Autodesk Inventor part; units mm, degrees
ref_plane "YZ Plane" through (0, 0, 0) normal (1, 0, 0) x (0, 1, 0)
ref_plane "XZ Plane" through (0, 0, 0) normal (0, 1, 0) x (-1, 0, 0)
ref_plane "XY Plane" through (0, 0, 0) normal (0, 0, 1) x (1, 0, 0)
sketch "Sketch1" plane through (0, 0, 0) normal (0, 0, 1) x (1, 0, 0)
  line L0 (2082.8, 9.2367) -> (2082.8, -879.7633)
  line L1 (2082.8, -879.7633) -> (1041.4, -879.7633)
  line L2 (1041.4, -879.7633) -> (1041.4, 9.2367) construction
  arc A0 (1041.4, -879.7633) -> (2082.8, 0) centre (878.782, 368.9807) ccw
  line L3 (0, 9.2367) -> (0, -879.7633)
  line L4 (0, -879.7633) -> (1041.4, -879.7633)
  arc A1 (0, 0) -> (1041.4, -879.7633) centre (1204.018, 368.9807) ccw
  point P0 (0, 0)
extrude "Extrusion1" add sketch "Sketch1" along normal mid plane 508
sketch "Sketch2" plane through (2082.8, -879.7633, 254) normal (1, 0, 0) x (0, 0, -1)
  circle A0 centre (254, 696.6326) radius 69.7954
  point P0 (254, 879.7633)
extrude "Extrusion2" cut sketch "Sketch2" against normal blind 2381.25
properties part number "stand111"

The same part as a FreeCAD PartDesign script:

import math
import FreeCAD as App
import Part
import Sketcher

V = App.Vector
Q = App.Units.Quantity

doc = App.newDocument("Part")
body = doc.addObject("PartDesign::Body", "Body")
body.AllowCompound = True

sketch1 = doc.addObject("Sketcher::SketchObject", "Sketch")
body.addObject(sketch1)
sketch1.AttachmentSupport = (doc.XY_Plane, [""])
sketch1.MapMode = "FlatFace"
sketch1.addGeometry([
    Part.LineSegment(V(0, -880, 0), V(1041, -880, 0)),
    Part.ArcOfCircle(Part.Circle(V(1204, 369, 0), V(0, 0, 1), 1259), math.radians(-163), math.radians(-97)),
    Part.LineSegment(V(0, 0, 0), V(0, -880, 0)),
    Part.LineSegment(V(2083, -880, 0), V(2083, 0, 0)),
    Part.ArcOfCircle(Part.Circle(V(879, 369, 0), V(0, 0, 1), 1259), math.radians(-83), math.radians(-17)),
    Part.LineSegment(V(1041, -880, 0), V(2083, -880, 0)),
], False)
sketch1.addConstraint([
    Sketcher.Constraint("Coincident", 0, 2, 1, 2),
    Sketcher.Constraint("Coincident", 1, 1, 2, 1),
    Sketcher.Constraint("Coincident", 2, 2, 0, 1),
    Sketcher.Constraint("Coincident", 3, 2, 4, 2),
    Sketcher.Constraint("Coincident", 4, 1, 5, 1),
    Sketcher.Constraint("Coincident", 5, 2, 3, 1),
    Sketcher.Constraint("Horizontal", 0),
    Sketcher.Constraint("Vertical", 2),
    Sketcher.Constraint("Vertical", 3),
    Sketcher.Constraint("Horizontal", 5),
    Sketcher.Constraint("Equal", 1, 4),
    Sketcher.Constraint("PointOnObject", 2, 2, -2),
    Sketcher.Constraint("PointOnObject", 3, 2, -1),
    Sketcher.Constraint("Horizontal", 1, 3, 4, 3),
    Sketcher.Constraint("Equal", 0, 5),
    Sketcher.Constraint("Equal", 2, 3),
    Sketcher.Constraint("DistanceX", 0, 1, 0, 2, Q("41 in")),
    Sketcher.Constraint("DistanceX", -1, 1, 3, 2, Q("82 in")),
    Sketcher.Constraint("Radius", 1, Q("1259.288 mm")),
    Sketcher.Constraint("DistanceY", 2, 2, 2, 1, Q("879.7633 mm")),
])
pad1 = doc.addObject("PartDesign::Pad", "Pad")
body.addObject(pad1)
pad1.Profile = sketch1
pad1.Length = Q("20 in")
pad1.Midplane = True

sketch2 = doc.addObject("Sketcher::SketchObject", "Sketch001")
body.addObject(sketch2)
sketch2.AttachmentSupport = (doc.YZ_Plane, [""])
sketch2.MapMode = "FlatFace"
sketch2.AttachmentOffset = App.Placement(V(0, 0, 82 * 25.4), App.Rotation())
sketch2.addGeometry(Part.Circle(V(-183, 0, 0), V(0, 0, 1), 70), False)
sketch2.addConstraint([
    Sketcher.Constraint("PointOnObject", 0, 3, -1),
    Sketcher.Constraint("Diameter", 0, Q("5.4957 in")),
    Sketcher.Constraint("DistanceX", 0, 3, -1, 1, Q("183.1307 mm")),
])
pocket1 = doc.addObject("PartDesign::Pocket", "Pocket")
body.addObject(pocket1)
pocket1.Profile = sketch2
pocket1.Length = Q("93.75 in")

doc.recompute()
